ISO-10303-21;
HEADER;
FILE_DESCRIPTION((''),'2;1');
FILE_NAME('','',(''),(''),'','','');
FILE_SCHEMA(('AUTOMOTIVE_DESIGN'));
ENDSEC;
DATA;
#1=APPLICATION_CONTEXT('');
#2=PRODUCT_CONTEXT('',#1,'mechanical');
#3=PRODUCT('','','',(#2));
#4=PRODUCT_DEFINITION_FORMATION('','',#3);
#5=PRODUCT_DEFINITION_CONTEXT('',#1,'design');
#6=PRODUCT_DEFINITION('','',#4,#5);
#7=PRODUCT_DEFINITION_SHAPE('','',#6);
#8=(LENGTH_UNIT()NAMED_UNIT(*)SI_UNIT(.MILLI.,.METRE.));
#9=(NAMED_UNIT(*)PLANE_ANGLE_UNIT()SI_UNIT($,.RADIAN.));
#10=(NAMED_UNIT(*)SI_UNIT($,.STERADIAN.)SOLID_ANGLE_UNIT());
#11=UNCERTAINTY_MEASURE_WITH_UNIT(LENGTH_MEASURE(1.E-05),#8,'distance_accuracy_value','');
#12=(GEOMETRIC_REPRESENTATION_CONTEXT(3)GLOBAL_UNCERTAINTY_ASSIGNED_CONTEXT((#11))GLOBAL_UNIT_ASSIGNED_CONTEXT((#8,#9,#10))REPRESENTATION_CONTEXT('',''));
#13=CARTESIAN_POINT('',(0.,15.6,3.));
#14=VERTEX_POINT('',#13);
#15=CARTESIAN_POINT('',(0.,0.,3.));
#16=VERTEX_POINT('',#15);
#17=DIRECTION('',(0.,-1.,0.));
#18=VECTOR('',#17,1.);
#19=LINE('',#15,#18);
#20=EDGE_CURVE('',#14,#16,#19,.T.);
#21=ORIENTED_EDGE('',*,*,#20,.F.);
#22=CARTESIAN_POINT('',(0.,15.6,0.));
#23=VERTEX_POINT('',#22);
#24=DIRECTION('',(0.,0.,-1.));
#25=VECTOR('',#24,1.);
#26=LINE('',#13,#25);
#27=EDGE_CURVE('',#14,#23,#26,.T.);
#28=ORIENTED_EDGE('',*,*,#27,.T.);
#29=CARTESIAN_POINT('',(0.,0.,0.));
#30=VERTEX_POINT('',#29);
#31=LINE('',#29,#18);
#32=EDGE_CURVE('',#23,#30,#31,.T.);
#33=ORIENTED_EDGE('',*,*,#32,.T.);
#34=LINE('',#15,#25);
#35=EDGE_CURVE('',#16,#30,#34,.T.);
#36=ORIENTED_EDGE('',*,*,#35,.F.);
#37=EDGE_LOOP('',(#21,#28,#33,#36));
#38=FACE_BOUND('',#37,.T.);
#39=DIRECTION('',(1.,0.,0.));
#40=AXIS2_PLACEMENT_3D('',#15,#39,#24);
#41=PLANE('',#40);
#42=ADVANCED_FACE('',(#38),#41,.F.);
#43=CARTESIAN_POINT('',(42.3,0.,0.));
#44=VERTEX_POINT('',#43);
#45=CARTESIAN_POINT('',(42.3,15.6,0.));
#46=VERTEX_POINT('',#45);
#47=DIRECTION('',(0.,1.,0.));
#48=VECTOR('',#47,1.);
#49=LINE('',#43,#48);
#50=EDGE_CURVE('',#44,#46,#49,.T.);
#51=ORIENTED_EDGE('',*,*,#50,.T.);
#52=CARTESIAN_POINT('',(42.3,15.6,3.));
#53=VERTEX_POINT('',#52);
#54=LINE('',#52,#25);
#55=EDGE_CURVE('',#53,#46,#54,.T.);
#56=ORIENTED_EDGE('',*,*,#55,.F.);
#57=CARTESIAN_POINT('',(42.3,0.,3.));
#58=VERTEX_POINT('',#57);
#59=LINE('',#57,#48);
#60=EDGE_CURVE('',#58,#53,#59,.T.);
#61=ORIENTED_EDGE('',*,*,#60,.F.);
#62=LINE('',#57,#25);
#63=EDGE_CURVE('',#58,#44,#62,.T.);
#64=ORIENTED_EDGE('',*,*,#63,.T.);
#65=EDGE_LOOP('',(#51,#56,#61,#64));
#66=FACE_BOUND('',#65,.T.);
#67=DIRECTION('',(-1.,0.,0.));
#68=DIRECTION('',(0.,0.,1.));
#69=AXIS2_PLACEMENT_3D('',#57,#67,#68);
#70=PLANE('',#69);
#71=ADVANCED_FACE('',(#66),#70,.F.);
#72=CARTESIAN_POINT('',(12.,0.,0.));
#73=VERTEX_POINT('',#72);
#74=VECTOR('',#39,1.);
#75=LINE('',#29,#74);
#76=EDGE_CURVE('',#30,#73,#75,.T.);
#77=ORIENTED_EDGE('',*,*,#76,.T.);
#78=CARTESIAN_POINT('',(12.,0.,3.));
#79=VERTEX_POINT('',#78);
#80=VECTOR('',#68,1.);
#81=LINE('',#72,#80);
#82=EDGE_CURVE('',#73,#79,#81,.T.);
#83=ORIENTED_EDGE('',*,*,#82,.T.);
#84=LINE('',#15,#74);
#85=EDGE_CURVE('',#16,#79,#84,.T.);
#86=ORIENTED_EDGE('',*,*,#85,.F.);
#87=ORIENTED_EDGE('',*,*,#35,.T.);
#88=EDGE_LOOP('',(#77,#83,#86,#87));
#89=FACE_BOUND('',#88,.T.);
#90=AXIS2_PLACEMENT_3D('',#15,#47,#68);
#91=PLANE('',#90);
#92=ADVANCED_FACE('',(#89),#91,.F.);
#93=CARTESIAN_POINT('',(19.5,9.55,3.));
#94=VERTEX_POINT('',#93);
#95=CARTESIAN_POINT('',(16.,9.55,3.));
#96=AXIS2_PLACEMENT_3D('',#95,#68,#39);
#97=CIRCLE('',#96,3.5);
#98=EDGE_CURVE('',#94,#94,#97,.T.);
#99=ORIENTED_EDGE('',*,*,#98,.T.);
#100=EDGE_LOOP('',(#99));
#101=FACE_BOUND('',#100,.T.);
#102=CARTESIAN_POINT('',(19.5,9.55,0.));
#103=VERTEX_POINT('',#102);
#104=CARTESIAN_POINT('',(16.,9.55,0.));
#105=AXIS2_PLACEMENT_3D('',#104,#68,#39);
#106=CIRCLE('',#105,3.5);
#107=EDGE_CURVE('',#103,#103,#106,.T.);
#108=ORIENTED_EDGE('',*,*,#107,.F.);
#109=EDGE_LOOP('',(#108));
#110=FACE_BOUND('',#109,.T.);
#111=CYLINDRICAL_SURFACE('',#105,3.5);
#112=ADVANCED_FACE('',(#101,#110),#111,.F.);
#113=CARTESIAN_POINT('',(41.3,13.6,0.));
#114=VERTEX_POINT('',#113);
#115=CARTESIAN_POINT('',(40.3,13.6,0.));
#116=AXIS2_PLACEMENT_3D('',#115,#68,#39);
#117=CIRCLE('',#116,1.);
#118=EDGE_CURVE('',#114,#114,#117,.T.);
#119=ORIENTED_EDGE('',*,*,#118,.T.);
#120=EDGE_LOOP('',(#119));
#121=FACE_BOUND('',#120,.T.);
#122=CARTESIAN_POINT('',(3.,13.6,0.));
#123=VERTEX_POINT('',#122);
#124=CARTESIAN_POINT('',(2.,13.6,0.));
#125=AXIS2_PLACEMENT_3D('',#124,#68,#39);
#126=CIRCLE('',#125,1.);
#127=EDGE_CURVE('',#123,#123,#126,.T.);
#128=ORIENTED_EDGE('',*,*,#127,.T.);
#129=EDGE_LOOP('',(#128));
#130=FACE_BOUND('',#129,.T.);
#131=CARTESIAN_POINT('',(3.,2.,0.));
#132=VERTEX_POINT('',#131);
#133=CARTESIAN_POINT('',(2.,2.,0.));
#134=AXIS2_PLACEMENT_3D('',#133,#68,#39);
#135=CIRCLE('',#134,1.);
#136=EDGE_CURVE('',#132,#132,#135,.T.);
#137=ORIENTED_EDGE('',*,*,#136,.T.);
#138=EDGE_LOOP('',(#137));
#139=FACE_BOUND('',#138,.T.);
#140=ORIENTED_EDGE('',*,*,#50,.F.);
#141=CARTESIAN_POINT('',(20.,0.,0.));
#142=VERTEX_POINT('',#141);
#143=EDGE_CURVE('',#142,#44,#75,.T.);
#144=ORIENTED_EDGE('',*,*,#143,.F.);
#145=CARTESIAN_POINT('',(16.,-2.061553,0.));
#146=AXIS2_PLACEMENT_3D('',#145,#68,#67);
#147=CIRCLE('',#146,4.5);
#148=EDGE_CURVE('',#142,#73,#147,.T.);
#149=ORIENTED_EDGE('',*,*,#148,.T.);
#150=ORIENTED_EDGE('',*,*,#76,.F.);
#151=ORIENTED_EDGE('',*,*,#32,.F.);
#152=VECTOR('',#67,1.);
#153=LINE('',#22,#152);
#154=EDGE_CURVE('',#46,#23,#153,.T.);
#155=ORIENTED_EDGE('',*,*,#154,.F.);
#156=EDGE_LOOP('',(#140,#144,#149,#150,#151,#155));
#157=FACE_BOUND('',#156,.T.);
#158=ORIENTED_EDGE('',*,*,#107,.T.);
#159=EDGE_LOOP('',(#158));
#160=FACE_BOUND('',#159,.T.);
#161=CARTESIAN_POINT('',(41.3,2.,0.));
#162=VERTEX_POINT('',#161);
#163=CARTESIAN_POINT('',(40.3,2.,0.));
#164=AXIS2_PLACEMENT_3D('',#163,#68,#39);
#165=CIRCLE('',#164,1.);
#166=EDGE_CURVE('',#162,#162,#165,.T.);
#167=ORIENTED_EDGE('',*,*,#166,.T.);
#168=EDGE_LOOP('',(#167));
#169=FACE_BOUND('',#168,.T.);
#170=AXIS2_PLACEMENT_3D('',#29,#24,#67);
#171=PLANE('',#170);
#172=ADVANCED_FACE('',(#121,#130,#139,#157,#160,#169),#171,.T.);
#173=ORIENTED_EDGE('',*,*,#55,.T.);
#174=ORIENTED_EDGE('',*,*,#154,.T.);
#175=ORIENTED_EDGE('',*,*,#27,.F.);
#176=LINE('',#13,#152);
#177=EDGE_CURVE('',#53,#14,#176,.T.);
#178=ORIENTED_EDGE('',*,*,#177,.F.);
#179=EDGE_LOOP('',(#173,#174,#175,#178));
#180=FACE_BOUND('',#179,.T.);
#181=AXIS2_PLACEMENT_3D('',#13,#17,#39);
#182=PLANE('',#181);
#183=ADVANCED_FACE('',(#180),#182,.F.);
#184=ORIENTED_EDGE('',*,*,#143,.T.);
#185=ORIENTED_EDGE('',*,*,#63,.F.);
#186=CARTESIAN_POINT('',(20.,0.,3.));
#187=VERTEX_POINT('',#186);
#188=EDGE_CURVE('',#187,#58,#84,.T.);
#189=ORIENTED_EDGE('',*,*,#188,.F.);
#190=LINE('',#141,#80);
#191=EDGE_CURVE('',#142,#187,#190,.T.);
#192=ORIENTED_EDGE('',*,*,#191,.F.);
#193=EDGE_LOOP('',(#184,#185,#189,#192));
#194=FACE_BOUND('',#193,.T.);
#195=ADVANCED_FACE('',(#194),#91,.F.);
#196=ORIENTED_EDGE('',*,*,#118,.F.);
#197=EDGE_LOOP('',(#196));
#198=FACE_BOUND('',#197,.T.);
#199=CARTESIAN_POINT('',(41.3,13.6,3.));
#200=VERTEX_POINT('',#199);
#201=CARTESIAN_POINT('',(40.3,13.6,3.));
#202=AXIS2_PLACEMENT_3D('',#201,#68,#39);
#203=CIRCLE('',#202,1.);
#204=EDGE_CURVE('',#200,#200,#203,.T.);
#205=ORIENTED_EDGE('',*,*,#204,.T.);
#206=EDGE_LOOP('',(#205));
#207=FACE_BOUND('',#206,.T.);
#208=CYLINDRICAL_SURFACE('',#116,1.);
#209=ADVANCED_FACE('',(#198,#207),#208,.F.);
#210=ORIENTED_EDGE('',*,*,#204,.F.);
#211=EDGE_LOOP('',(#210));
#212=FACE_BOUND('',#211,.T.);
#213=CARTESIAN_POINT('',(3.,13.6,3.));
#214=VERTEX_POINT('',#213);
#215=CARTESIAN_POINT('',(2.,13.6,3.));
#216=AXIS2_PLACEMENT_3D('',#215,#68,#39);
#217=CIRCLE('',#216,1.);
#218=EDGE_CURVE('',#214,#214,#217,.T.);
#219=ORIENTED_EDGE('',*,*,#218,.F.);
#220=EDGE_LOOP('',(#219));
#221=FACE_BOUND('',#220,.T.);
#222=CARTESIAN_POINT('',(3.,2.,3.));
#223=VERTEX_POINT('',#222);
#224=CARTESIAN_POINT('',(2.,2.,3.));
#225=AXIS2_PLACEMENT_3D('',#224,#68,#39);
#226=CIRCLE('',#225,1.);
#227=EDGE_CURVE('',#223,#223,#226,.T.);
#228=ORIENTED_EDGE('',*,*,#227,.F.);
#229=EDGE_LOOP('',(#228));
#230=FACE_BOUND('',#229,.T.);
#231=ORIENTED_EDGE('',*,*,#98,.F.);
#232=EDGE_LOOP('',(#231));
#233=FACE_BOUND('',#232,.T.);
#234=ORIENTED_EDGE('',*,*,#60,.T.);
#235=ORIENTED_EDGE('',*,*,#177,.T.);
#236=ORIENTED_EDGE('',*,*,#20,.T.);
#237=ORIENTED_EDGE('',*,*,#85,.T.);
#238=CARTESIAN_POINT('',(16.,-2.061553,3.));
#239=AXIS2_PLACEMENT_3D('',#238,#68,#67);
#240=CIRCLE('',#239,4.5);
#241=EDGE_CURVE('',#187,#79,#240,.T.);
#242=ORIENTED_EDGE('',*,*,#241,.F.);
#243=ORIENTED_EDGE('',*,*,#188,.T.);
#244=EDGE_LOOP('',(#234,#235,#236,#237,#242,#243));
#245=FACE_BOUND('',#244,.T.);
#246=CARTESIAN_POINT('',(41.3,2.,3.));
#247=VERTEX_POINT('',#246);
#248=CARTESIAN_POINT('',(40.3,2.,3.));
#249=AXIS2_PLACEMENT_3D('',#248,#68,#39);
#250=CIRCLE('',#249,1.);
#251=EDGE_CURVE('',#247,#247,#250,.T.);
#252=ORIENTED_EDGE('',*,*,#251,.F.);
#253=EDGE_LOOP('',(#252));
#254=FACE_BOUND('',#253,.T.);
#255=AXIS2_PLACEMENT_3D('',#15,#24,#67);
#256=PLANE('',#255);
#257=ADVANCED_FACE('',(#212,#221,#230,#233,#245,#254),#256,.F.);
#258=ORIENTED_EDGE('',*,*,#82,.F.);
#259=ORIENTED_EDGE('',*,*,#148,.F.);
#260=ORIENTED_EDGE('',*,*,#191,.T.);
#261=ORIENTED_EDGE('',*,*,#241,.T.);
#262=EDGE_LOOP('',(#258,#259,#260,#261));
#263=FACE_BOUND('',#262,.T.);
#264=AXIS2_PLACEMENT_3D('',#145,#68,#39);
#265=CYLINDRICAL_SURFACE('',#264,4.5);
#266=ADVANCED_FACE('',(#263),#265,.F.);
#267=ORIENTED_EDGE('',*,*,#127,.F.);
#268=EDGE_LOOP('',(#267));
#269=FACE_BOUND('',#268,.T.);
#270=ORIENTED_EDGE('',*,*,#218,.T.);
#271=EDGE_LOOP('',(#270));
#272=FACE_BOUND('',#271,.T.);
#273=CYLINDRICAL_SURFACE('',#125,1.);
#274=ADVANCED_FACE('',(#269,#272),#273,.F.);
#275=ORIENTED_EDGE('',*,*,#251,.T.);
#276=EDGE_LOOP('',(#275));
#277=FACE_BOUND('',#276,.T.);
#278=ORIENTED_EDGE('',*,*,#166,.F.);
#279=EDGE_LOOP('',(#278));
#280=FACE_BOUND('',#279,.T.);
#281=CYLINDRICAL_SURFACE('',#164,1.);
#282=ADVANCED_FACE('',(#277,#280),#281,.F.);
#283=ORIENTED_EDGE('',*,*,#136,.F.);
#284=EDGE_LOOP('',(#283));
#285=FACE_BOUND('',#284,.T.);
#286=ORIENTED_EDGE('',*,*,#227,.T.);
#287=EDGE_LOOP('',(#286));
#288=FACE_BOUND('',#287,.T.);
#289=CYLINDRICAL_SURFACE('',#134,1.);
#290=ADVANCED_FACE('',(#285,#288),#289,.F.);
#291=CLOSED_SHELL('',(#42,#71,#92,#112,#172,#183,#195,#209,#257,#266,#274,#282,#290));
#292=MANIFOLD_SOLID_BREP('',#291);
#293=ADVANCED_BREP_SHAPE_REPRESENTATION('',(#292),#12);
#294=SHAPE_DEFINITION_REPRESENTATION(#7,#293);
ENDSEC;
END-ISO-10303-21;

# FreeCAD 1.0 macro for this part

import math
import FreeCAD as App
import Part
import Sketcher

V = App.Vector

doc = App.newDocument("Part")
body = doc.addObject("PartDesign::Body", "Body")

# Sketch on XY plane
sketch1 = body.newObject("Sketcher::SketchObject", "Sketch")
sketch1.AttachmentSupport = (doc.getObject("XY_Plane"), [""])
sketch1.MapMode = "FlatFace"
sketch1.addGeometry([
    Part.LineSegment(V(0, 16, 0), V(0, 0, 0)),
    Part.LineSegment(V(0, 0, 0), V(42, 0, 0)),
    Part.LineSegment(V(42, 0, 0), V(42, 16, 0)),
    Part.LineSegment(V(42, 16, 0), V(0, 16, 0)),
], False)
sketch1.addConstraint([
    Sketcher.Constraint("Coincident", 0, 2, 1, 1),
    Sketcher.Constraint("Coincident", 1, 2, 2, 1),
    Sketcher.Constraint("Coincident", 2, 2, 3, 1),
    Sketcher.Constraint("Coincident", 3, 2, 0, 1),
    Sketcher.Constraint("Vertical", 0),
    Sketcher.Constraint("Horizontal", 1),
    Sketcher.Constraint("Vertical", 2),
    Sketcher.Constraint("Horizontal", 3),
    Sketcher.Constraint("Coincident", 0, 2, -1, 1),
    Sketcher.Constraint("DistanceX", 1, 1, 1, 2, 42.3),
    Sketcher.Constraint("DistanceY", 0, 2, 0, 1, 15.6),
])
pad1 = body.newObject("PartDesign::Pad", "Pad")
pad1.Profile = sketch1
pad1.Length = 3

# Sketch on XY plane
sketch2 = body.newObject("Sketcher::SketchObject", "Sketch001")
sketch2.AttachmentSupport = (doc.getObject("XY_Plane"), [""])
sketch2.MapMode = "FlatFace"
sketch2.AttachmentOffset = App.Placement(V(0, 0, 3), App.Rotation())
sketch2.addGeometry([
    Part.Circle(V(2, 13.6, 0), V(0, 0, 1), 1),
    Part.Circle(V(40.3, 13.6, 0), V(0, 0, 1), 1),
    Part.Circle(V(40.3, 2, 0), V(0, 0, 1), 1),
    Part.Circle(V(2, 2, 0), V(0, 0, 1), 1),
], False)
sketch2.addConstraint([
    Sketcher.Constraint("Equal", 0, 1),
    Sketcher.Constraint("Equal", 1, 2),
    Sketcher.Constraint("Equal", 2, 3),
    Sketcher.Constraint("Horizontal", 0, 3, 1, 3),
    Sketcher.Constraint("Horizontal", 2, 3, 3, 3),
    Sketcher.Constraint("Vertical", 1, 3, 2, 3),
    Sketcher.Constraint("Vertical", 0, 3, 3, 3),
    Sketcher.Constraint("Diameter", 0, 2.0),
    Sketcher.Constraint("DistanceX", -1, 1, 0, 3, 2.0),
    Sketcher.Constraint("DistanceY", -1, 1, 2, 3, 2.0),
    Sketcher.Constraint("DistanceY", -1, 1, 0, 3, 13.6),
    Sketcher.Constraint("DistanceX", -1, 1, 1, 3, 40.3),
])
pocket1 = body.newObject("PartDesign::Pocket", "Pocket")
pocket1.Profile = sketch2
pocket1.Type = "ThroughAll"

# Sketch on XY plane
sketch3 = body.newObject("Sketcher::SketchObject", "Sketch002")
sketch3.AttachmentSupport = (doc.getObject("XY_Plane"), [""])
sketch3.MapMode = "FlatFace"
sketch3.AttachmentOffset = App.Placement(V(0, 0, 3), App.Rotation())
sketch3.addGeometry(Part.Circle(V(16, 9.6, 0), V(0, 0, 1), 3.5), False)
sketch3.addConstraint([
    Sketcher.Constraint("Diameter", 0, 7.0),
    Sketcher.Constraint("DistanceX", -1, 1, 0, 3, 16.0),
    Sketcher.Constraint("DistanceY", -1, 1, 0, 3, 9.55),
])
pocket2 = body.newObject("PartDesign::Pocket", "Pocket001")
pocket2.Profile = sketch3
pocket2.Type = "ThroughAll"

# Sketch on XY plane
sketch4 = body.newObject("Sketcher::SketchObject", "Sketch003")
sketch4.AttachmentSupport = (doc.getObject("XY_Plane"), [""])
sketch4.MapMode = "FlatFace"
sketch4.AttachmentOffset = App.Placement(V(0, 0, 3), App.Rotation())
sketch4.addGeometry([
    Part.LineSegment(V(12, 0, 0), V(20, 0, 0)),
    Part.ArcOfCircle(Part.Circle(V(16, -2.1, 0), V(0, 0, 1), 4.5), math.radians(27), math.radians(153)),
], False)
sketch4.addConstraint([
    Sketcher.Constraint("Coincident", 0, 1, 1, 2),
    Sketcher.Constraint("Coincident", 1, 1, 0, 2),
    Sketcher.Constraint("Horizontal", 0),
    Sketcher.Constraint("PointOnObject", 0, 1, -1),
    Sketcher.Constraint("Radius", 1, 4.5),
    Sketcher.Constraint("DistanceX", 0, 1, 0, 2, 8.0),
    Sketcher.Constraint("DistanceX", -1, 1, 1, 3, 16.0),
])
pocket3 = body.newObject("PartDesign::Pocket", "Pocket002")
pocket3.Profile = sketch4
pocket3.Type = "ThroughAll"

doc.recompute()
